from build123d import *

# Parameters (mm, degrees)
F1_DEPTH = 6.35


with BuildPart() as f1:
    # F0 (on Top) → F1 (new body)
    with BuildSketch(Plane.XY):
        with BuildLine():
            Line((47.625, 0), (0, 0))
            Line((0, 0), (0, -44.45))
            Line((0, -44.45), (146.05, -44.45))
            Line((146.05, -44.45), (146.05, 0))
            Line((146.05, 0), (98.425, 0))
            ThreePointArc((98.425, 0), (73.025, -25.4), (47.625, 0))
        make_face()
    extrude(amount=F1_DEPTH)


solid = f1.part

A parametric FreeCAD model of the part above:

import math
import FreeCAD as App
import Part
import Sketcher
from FreeCAD import Vector
Q = App.Units.Quantity

doc = App.newDocument("Part")
body = doc.addObject("PartDesign::Body", "Body")

# Sketch on XY plane
sketch1 = body.newObject("Sketcher::SketchObject", "Sketch")
sketch1.AttachmentSupport = (doc.getObject("XY_Plane"), [""])
sketch1.MapMode = "FlatFace"
sketch1.addGeometry(Part.LineSegment(Vector(48, 0, 0), Vector(0, 0, 0)), False)
sketch1.addGeometry(Part.LineSegment(Vector(0, 0, 0), Vector(0, -44, 0)), False)
sketch1.addGeometry(Part.LineSegment(Vector(0, -44, 0), Vector(146, -44, 0)), False)
sketch1.addGeometry(Part.LineSegment(Vector(146, -44, 0), Vector(146, 0, 0)), False)
sketch1.addGeometry(Part.LineSegment(Vector(146, 0, 0), Vector(98, 0, 0)), False)
sketch1.addGeometry(Part.ArcOfCircle(Part.Circle(Vector(73, 0, 0), Vector(0, 0, 1), 25), math.radians(180), math.radians(360)), False)
sketch1.addConstraint(Sketcher.Constraint("Coincident", 0, 2, 1, 1))
sketch1.addConstraint(Sketcher.Constraint("Coincident", 1, 2, 2, 1))
sketch1.addConstraint(Sketcher.Constraint("Coincident", 2, 2, 3, 1))
sketch1.addConstraint(Sketcher.Constraint("Coincident", 3, 2, 4, 1))
sketch1.addConstraint(Sketcher.Constraint("Coincident", 4, 2, 5, 2))
sketch1.addConstraint(Sketcher.Constraint("Coincident", 5, 1, 0, 1))
sketch1.addConstraint(Sketcher.Constraint("Horizontal", 0))
sketch1.addConstraint(Sketcher.Constraint("Vertical", 1))
sketch1.addConstraint(Sketcher.Constraint("Horizontal", 2))
sketch1.addConstraint(Sketcher.Constraint("Vertical", 3))
sketch1.addConstraint(Sketcher.Constraint("Horizontal", 4))
sketch1.addConstraint(Sketcher.Constraint("Coincident", 0, 2, -1, 1))
sketch1.addConstraint(Sketcher.Constraint("PointOnObject", 5, 3, -1))
sketch1.addConstraint(Sketcher.Constraint("PointOnObject", 3, 2, -1))
sketch1.addConstraint(Sketcher.Constraint("Equal", 0, 4))
sketch1.addConstraint(Sketcher.Constraint("Radius", 5, Q("1 in")))
sketch1.addConstraint(Sketcher.Constraint("DistanceX", 2, 1, 2, 2, Q("5.75 in")))
sketch1.addConstraint(Sketcher.Constraint("DistanceY", 1, 2, 1, 1, Q("1.75 in")))
pad1 = body.newObject("PartDesign::Pad", "Pad")
pad1.Profile = sketch1
pad1.Length = Q("0.25 in")

doc.recompute()
